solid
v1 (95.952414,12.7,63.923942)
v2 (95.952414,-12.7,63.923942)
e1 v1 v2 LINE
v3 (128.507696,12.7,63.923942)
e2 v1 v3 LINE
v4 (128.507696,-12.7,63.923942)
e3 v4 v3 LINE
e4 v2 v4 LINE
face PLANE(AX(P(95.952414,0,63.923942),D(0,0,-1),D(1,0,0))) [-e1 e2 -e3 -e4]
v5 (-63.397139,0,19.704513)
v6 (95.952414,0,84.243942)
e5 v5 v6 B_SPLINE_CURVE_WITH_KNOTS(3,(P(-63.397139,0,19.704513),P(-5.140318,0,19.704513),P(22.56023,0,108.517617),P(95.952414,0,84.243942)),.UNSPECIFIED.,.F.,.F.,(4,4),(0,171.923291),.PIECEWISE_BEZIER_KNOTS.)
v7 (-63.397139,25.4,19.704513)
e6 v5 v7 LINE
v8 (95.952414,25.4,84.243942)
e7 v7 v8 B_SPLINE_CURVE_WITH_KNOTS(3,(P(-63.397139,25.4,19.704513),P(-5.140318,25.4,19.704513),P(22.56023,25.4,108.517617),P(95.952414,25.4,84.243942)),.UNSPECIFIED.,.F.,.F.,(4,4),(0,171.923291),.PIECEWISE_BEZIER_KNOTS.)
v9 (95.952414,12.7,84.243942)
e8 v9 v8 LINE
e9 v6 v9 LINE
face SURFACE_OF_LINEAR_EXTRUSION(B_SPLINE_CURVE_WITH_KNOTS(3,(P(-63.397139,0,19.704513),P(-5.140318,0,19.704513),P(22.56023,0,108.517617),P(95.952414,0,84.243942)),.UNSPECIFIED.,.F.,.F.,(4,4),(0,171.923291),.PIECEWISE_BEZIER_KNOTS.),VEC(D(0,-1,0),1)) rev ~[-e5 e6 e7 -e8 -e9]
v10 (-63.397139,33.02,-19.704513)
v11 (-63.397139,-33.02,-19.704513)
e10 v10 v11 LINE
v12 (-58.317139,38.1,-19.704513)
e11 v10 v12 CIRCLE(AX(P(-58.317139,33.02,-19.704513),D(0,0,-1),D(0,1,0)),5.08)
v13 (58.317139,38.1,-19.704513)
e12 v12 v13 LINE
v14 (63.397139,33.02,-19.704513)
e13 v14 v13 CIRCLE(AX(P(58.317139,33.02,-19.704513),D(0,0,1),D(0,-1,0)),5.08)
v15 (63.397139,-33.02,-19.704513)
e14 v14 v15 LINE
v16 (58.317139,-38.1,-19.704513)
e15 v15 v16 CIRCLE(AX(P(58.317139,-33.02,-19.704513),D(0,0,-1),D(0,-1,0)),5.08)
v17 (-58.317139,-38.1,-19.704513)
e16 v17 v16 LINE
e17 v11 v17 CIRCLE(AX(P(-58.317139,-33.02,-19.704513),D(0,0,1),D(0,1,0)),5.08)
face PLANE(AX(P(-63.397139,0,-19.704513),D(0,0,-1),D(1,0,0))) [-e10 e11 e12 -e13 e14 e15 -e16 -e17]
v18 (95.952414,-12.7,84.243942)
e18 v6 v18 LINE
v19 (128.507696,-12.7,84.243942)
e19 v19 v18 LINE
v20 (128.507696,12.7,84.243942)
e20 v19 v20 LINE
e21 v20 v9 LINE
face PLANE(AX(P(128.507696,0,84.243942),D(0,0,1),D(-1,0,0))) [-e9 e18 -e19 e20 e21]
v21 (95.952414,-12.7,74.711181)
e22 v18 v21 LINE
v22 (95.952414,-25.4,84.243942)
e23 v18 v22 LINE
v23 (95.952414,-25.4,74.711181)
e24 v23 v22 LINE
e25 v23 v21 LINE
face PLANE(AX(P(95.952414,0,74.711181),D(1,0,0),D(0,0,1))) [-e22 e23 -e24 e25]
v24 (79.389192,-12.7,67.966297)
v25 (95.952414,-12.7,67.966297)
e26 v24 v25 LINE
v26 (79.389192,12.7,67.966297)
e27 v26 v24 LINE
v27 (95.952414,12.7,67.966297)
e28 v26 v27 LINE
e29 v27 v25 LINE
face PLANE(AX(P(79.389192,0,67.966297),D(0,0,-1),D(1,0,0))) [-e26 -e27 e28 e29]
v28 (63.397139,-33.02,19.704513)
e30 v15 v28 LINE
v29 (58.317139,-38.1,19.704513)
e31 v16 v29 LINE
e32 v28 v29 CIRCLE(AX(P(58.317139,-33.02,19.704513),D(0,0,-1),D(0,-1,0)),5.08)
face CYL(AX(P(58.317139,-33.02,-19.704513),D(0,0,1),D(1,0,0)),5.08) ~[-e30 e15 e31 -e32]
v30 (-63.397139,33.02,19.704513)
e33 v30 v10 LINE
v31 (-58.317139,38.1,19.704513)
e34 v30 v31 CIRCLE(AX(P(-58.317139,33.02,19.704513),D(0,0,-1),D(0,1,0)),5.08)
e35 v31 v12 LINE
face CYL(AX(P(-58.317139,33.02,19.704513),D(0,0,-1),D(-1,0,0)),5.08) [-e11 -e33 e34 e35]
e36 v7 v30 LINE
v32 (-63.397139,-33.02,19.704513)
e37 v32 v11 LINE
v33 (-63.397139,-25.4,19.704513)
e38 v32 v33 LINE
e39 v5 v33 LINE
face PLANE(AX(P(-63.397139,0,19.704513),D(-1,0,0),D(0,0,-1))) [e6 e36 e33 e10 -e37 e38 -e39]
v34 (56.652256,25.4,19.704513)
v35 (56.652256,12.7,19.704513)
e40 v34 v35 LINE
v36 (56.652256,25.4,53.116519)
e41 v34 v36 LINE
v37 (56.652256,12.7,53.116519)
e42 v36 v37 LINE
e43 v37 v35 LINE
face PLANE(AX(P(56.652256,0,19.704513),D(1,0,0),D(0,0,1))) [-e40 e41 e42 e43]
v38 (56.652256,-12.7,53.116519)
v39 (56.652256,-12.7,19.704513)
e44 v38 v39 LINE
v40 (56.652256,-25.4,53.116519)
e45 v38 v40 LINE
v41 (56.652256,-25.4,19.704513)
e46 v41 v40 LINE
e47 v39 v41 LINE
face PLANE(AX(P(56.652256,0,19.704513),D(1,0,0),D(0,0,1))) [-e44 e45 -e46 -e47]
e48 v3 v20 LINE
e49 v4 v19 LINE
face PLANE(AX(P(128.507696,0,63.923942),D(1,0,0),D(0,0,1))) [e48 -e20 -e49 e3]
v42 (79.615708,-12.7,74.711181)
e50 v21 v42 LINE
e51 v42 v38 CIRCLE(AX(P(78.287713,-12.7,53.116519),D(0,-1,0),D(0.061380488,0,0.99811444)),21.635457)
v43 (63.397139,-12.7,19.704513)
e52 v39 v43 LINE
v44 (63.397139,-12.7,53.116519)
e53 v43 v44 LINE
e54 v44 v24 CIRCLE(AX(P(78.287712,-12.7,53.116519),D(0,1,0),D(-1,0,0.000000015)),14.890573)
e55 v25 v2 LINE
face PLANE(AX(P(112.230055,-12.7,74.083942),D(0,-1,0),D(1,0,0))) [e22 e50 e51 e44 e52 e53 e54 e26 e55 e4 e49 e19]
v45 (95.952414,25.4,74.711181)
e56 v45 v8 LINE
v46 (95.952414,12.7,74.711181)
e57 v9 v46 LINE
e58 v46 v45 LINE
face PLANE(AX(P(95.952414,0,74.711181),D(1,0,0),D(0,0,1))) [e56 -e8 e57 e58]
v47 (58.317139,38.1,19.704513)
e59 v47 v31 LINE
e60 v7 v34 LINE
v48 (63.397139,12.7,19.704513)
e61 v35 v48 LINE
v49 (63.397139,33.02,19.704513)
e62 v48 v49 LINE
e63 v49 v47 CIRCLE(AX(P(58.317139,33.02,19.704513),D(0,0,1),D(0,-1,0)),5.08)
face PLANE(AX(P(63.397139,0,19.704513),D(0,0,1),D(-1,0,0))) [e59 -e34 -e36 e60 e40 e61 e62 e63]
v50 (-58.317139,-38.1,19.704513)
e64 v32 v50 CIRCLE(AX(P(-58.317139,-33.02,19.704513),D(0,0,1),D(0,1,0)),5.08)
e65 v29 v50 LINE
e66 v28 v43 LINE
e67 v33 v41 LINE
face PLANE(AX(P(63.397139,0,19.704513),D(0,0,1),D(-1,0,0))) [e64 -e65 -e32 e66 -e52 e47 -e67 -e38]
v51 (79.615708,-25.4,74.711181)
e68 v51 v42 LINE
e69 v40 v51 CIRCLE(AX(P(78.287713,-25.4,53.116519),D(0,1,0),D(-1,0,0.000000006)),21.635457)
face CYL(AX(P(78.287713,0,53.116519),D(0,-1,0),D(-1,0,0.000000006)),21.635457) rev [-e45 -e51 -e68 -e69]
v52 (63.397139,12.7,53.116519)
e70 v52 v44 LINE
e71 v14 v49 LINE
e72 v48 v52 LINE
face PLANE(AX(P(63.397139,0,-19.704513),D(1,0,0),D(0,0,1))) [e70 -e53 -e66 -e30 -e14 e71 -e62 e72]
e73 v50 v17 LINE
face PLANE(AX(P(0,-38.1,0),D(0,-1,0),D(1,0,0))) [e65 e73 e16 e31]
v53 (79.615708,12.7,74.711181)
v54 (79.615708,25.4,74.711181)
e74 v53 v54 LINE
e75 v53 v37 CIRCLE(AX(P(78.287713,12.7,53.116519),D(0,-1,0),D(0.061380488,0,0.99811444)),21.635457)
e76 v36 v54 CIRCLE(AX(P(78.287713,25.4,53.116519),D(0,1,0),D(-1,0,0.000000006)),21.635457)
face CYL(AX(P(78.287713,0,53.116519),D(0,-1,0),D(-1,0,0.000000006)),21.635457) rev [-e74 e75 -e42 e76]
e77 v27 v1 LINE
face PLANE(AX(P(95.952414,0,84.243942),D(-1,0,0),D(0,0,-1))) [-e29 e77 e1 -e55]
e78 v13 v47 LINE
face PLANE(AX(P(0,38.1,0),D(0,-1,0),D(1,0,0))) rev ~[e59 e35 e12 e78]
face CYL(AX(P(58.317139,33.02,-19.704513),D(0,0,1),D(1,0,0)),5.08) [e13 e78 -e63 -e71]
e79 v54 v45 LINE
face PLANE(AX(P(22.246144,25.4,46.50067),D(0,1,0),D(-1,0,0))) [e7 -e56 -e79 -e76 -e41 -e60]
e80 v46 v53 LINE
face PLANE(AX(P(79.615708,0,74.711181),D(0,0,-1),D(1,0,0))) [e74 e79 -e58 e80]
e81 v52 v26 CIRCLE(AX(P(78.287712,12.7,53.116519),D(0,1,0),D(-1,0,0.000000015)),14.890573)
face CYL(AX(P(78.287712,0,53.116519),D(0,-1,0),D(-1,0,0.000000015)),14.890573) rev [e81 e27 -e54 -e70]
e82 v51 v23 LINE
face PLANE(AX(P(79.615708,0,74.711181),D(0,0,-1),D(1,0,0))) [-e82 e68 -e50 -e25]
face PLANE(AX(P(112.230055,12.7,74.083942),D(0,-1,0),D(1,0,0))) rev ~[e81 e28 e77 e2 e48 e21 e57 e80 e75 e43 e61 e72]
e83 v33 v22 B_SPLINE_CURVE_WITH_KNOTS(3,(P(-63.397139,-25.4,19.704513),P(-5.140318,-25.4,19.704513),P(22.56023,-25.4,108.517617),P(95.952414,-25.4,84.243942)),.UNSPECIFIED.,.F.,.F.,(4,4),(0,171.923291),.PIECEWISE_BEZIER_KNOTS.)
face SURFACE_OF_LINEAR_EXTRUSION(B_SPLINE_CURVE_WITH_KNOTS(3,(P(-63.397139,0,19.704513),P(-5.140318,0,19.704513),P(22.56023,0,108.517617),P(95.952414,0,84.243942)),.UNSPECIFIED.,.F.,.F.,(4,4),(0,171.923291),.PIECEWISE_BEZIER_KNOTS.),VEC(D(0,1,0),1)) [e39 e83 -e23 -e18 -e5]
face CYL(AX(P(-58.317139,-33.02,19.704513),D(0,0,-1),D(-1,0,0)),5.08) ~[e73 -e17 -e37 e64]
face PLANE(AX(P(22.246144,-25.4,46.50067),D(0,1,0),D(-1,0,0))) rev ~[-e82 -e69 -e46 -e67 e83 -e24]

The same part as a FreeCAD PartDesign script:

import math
import FreeCAD as App
import Part
import Sketcher
from FreeCAD import Vector
Q = App.Units.Quantity


def edges_at(feature, points):
    """Names of the edges that pass closest to the given points."""
    edges = feature.Shape.Edges
    near = lambda p: min(range(len(edges)), key=lambda i: edges[i].distToShape(Part.Vertex(*p))[0])
    return sorted({f"Edge{near(p) + 1}" for p in points})

doc = App.newDocument("Part")
body = doc.addObject("PartDesign::Body", "Body")

sketch1 = body.newObject("Sketcher::SketchObject", "Sketch")
sketch1.AttachmentSupport = (doc.getObject("XZ_Plane"), [""])
sketch1.MapMode = "FlatFace"
sketch1.addGeometry([
    Part.LineSegment(Vector(-63, 20, 0), Vector(-63, -20, 0)),
    Part.LineSegment(Vector(-63, -20, 0), Vector(63, -20, 0)),
    Part.LineSegment(Vector(63, -20, 0), Vector(63, 20, 0)),
    Part.LineSegment(Vector(63, 20, 0), Vector(-63, 20, 0)),
], False)
sketch1.addConstraint([
    Sketcher.Constraint("Coincident", 0, 2, 1, 1),
    Sketcher.Constraint("Coincident", 1, 2, 2, 1),
    Sketcher.Constraint("Coincident", 2, 2, 3, 1),
    Sketcher.Constraint("Coincident", 3, 2, 0, 1),
    Sketcher.Constraint("Vertical", 0),
    Sketcher.Constraint("Horizontal", 1),
    Sketcher.Constraint("Vertical", 2),
    Sketcher.Constraint("Horizontal", 3),
    Sketcher.Constraint("Symmetric", 0, 2, 2, 2, -1, 1),
    Sketcher.Constraint("DistanceX", 1, 1, 1, 2, Q("126.794278 mm")),
    Sketcher.Constraint("DistanceY", 0, 2, 0, 1, Q("39.409026 mm")),
])
pad1 = body.newObject("PartDesign::Pad", "Pad")
pad1.Profile = sketch1
pad1.Length = Q("3 in")
pad1.Midplane = True

sketch2 = body.newObject("Sketcher::SketchObject", "Sketch001")
sketch2.AttachmentSupport = (doc.getObject("XZ_Plane"), [""])
sketch2.MapMode = "FlatFace"
sketch2.addGeometry([
    Part.BSplineCurve([Vector(-63.397139, 19.704513, 0), Vector(-5.140318, 19.704513, 0), Vector(22.56023, 108.517617, 0), Vector(95.952414, 84.243942, 0)], [4, 4], [0, 171.923291], False, 3, [1, 1, 1, 1], False),
    Part.LineSegment(Vector(-63.397139, 19.704513, 0), Vector(56.652256, 19.704513, 0)),
    Part.LineSegment(Vector(56.652256, 19.704513, 0), Vector(56.652256, 53.116519, 0)),
    Part.ArcOfCircle(Part.Circle(Vector(78.287713, 53.116519, 0), Vector(0, 0, 1), 21.635457), math.radians(86.480945), math.radians(180)),
    Part.LineSegment(Vector(79.615708, 74.711181, 0), Vector(95.952414, 74.711181, 0)),
    Part.LineSegment(Vector(95.952414, 74.711181, 0), Vector(95.952414, 84.243942, 0)),
], False)
sketch2.addConstraint([
    Sketcher.Constraint("Block", 0),
    Sketcher.Constraint("Coincident", 0, 1, 1, 1),
    Sketcher.Constraint("Coincident", 1, 2, 2, 1),
    Sketcher.Constraint("Tangent", 2, 2, 3, 2),
    Sketcher.Constraint("Coincident", 3, 1, 4, 1),
    Sketcher.Constraint("Coincident", 4, 2, 5, 1),
    Sketcher.Constraint("Coincident", 5, 2, 0, 2),
    Sketcher.Constraint("Horizontal", 1),
    Sketcher.Constraint("Vertical", 2),
    Sketcher.Constraint("Horizontal", 4),
    Sketcher.Constraint("Vertical", 5),
    Sketcher.Constraint("Radius", 3, Q("21.635457 mm")),
    Sketcher.Constraint("DistanceY", 5, 1, 5, 2, Q("9.532761 mm")),
    Sketcher.Constraint("DistanceX", 3, 3, 4, 2, Q("17.664701 mm")),
    Sketcher.Constraint("DistanceX", 4, 1, 4, 2, Q("16.336706 mm")),
])
pad2 = body.newObject("PartDesign::Pad", "Pad001")
pad2.Profile = sketch2
pad2.Length = Q("2 in")
pad2.Midplane = True

sketch3 = body.newObject("Sketcher::SketchObject", "Sketch002")
sketch3.AttachmentSupport = (doc.getObject("XZ_Plane"), [""])
sketch3.MapMode = "FlatFace"
sketch3.addGeometry([
    Part.LineSegment(Vector(57, 20, 0), Vector(63, 20, 0)),
    Part.LineSegment(Vector(63, 20, 0), Vector(63, 53, 0)),
    Part.ArcOfCircle(Part.Circle(Vector(78, 53, 0), Vector(0, 0, 1), 15), math.radians(86), math.radians(180)),
    Part.LineSegment(Vector(79, 68, 0), Vector(96, 68, 0)),
    Part.LineSegment(Vector(96, 68, 0), Vector(96, 75, 0)),
    Part.LineSegment(Vector(96, 75, 0), Vector(80, 75, 0)),
    Part.ArcOfCircle(Part.Circle(Vector(78, 53, 0), Vector(0, 0, 1), 22), math.radians(86), math.radians(180)),
    Part.LineSegment(Vector(57, 53, 0), Vector(57, 20, 0)),
], False)
sketch3.addConstraint([
    Sketcher.Constraint("Coincident", 0, 2, 1, 1),
    Sketcher.Constraint("Tangent", 1, 2, 2, 2),
    Sketcher.Constraint("Coincident", 2, 1, 3, 1),
    Sketcher.Constraint("Coincident", 3, 2, 4, 1),
    Sketcher.Constraint("Coincident", 4, 2, 5, 1),
    Sketcher.Constraint("Coincident", 5, 2, 6, 1),
    Sketcher.Constraint("Tangent", 6, 2, 7, 1),
    Sketcher.Constraint("Coincident", 7, 2, 0, 1),
    Sketcher.Constraint("Horizontal", 0),
    Sketcher.Constraint("Vertical", 1),
    Sketcher.Constraint("Horizontal", 3),
    Sketcher.Constraint("Vertical", 4),
    Sketcher.Constraint("Horizontal", 5),
    Sketcher.Constraint("Vertical", 7),
    Sketcher.Constraint("Coincident", 6, 3, 2, 3),
    Sketcher.Constraint("Equal", 0, 4),
    Sketcher.Constraint("Radius", 2, Q("14.890573 mm")),
    Sketcher.Constraint("Radius", 6, Q("21.635457 mm")),
    Sketcher.Constraint("DistanceX", 6, 3, 3, 2, Q("17.664701 mm")),
    Sketcher.Constraint("DistanceX", 3, 1, 3, 2, Q("16.563222 mm")),
    Sketcher.Constraint("DistanceY", 1, 1, 1, 2, Q("33.412006 mm")),
    Sketcher.Constraint("DistanceY", -1, 1, 2, 3, Q("53.116519 mm")),
    Sketcher.Constraint("DistanceX", -1, 1, 0, 2, Q("63.397139 mm")),
])
pad3 = body.newObject("PartDesign::Pad", "Pad002")
pad3.Profile = sketch3
pad3.Length = Q("1 in")
pad3.Midplane = True

sketch4 = body.newObject("Sketcher::SketchObject", "Sketch003")
sketch4.AttachmentSupport = (doc.getObject("XZ_Plane"), [""])
sketch4.MapMode = "FlatFace"
sketch4.addGeometry([
    Part.LineSegment(Vector(129, 84, 0), Vector(96, 84, 0)),
    Part.LineSegment(Vector(96, 84, 0), Vector(96, 64, 0)),
    Part.LineSegment(Vector(96, 64, 0), Vector(129, 64, 0)),
    Part.LineSegment(Vector(129, 64, 0), Vector(129, 84, 0)),
], False)
sketch4.addConstraint([
    Sketcher.Constraint("Coincident", 0, 2, 1, 1),
    Sketcher.Constraint("Coincident", 1, 2, 2, 1),
    Sketcher.Constraint("Coincident", 2, 2, 3, 1),
    Sketcher.Constraint("Coincident", 3, 2, 0, 1),
    Sketcher.Constraint("Horizontal", 0),
    Sketcher.Constraint("Vertical", 1),
    Sketcher.Constraint("Horizontal", 2),
    Sketcher.Constraint("Vertical", 3),
    Sketcher.Constraint("DistanceY", 1, 2, 1, 1, Q("0.8 in")),
    Sketcher.Constraint("DistanceX", 0, 2, 0, 1, Q("32.555282 mm")),
    Sketcher.Constraint("DistanceY", -1, 1, 1, 2, Q("63.923942 mm")),
    Sketcher.Constraint("DistanceX", -1, 1, 0, 2, Q("95.952414 mm")),
])
pad4 = body.newObject("PartDesign::Pad", "Pad003")
pad4.Profile = sketch4
pad4.Length = Q("1 in")
pad4.Midplane = True
doc.recompute()

fillet = body.newObject("PartDesign::Fillet", "Fillet")
fillet.Base = (pad4, edges_at(pad4, [
    (-63.397, -38.1, 0),
    (63.397, -38.1, 0),
    (63.397, 38.1, 0),
    (-63.397, 38.1, 0),
]))
fillet.Radius = Q("0.2 in")

doc.recompute()
